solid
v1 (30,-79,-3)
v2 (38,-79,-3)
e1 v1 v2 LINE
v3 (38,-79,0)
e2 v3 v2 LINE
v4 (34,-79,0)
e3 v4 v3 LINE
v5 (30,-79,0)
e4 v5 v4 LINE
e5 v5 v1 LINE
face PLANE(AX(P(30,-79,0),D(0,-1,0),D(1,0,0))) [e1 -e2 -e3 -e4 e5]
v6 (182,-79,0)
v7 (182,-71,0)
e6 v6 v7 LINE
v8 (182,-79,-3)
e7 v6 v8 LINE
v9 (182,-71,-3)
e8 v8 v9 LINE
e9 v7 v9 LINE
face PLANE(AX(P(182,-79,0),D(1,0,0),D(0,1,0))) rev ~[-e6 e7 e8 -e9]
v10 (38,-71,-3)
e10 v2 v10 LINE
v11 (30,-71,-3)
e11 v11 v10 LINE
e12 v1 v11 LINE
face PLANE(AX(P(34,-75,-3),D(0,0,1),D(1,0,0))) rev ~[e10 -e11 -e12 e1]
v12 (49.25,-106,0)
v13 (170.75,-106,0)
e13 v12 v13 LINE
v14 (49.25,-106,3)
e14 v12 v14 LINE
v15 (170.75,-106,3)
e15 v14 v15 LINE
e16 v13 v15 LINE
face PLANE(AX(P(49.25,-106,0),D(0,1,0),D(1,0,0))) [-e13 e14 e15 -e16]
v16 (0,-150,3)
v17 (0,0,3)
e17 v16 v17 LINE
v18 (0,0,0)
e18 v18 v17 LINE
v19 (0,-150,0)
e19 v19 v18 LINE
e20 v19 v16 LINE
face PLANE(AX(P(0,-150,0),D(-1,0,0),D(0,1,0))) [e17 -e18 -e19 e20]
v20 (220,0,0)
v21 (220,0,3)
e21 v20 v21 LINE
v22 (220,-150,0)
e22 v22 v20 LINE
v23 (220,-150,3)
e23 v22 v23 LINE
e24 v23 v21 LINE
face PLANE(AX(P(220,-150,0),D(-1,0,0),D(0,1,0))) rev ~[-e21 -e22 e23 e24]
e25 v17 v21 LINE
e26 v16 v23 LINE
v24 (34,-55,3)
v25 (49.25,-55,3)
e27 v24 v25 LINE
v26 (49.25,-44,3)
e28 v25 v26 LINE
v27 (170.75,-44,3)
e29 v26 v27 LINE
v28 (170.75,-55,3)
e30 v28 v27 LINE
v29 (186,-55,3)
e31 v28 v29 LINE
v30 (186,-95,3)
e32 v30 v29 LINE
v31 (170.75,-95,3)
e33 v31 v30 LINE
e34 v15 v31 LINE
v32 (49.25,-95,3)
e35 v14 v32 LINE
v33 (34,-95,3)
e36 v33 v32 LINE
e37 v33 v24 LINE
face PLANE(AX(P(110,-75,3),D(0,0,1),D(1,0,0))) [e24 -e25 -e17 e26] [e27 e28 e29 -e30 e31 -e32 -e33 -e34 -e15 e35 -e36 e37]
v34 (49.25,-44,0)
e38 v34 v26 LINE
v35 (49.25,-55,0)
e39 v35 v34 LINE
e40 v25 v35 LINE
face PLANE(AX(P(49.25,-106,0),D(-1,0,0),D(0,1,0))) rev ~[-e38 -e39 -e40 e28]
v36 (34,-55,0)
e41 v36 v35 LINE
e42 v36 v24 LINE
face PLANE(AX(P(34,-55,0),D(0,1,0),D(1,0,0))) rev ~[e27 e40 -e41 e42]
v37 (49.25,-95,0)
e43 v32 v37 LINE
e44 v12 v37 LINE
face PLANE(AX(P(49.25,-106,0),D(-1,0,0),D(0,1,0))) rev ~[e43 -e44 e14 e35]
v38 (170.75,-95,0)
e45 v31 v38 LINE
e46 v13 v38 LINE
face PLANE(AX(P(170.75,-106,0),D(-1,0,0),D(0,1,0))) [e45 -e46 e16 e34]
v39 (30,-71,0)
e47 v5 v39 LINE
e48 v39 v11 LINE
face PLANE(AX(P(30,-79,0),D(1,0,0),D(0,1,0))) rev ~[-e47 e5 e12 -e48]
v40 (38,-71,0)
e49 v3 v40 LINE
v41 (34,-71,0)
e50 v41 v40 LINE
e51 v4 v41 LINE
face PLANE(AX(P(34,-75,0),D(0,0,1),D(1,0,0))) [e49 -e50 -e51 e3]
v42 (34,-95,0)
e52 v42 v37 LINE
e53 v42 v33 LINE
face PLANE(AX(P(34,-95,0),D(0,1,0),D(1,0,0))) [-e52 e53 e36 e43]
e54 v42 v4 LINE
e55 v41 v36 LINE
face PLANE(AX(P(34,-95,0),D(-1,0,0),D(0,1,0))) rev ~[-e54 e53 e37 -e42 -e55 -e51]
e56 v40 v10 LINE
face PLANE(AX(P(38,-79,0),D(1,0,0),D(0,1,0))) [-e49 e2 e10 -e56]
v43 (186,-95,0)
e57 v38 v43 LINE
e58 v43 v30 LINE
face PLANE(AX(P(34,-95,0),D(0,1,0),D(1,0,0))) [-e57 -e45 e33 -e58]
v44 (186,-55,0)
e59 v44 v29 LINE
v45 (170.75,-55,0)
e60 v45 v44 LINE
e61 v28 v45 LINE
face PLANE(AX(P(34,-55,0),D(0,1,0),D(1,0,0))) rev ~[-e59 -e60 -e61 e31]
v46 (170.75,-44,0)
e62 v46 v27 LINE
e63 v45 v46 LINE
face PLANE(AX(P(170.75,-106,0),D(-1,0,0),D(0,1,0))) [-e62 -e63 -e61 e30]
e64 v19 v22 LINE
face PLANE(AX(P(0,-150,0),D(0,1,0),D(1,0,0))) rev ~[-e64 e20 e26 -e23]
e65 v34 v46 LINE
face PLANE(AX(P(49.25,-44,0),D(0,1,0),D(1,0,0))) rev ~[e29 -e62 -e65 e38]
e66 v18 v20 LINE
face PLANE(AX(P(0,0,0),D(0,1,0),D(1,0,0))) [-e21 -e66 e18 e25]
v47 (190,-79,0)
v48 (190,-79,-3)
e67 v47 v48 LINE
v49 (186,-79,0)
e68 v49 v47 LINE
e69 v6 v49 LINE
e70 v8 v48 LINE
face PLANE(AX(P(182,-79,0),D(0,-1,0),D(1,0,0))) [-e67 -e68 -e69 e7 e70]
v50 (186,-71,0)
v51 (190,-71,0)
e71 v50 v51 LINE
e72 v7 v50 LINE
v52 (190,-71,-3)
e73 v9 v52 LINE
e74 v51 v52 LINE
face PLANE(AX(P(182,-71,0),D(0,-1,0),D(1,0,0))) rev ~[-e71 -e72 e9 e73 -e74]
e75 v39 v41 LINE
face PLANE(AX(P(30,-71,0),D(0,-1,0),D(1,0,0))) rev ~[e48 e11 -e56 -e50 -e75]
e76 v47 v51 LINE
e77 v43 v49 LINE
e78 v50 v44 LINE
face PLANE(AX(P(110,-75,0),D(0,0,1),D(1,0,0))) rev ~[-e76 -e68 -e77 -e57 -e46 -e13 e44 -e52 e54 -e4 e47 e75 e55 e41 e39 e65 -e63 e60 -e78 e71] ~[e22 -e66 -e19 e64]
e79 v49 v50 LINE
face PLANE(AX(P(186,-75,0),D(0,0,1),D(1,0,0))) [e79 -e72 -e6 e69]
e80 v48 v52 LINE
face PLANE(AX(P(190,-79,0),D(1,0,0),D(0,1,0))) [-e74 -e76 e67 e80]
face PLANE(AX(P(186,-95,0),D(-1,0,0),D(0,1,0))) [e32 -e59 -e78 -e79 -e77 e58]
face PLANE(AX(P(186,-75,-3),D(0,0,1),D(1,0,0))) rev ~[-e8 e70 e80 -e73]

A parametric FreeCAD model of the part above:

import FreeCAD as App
import Part
import Sketcher
from FreeCAD import Vector
Q = App.Units.Quantity

doc = App.newDocument("Part")
body = doc.addObject("PartDesign::Body", "Body")

sketch1 = body.newObject("Sketcher::SketchObject", "Sketch")
sketch1.AttachmentSupport = (doc.getObject("XY_Plane"), [""])
sketch1.MapMode = "FlatFace"
sketch1.addGeometry(Part.LineSegment(Vector(0, 0, 0), Vector(0, -150, 0)), False)
sketch1.addGeometry(Part.LineSegment(Vector(0, -150, 0), Vector(220, -150, 0)), False)
sketch1.addGeometry(Part.LineSegment(Vector(220, -150, 0), Vector(220, 0, 0)), False)
sketch1.addGeometry(Part.LineSegment(Vector(220, 0, 0), Vector(0, 0, 0)), False)
sketch1.addGeometry(Part.LineSegment(Vector(170.75, -106, 0), Vector(49.25, -106, 0)), False)
sketch1.addGeometry(Part.LineSegment(Vector(49.25, -106, 0), Vector(49.25, -44, 0)), False)
sketch1.addGeometry(Part.LineSegment(Vector(49.25, -44, 0), Vector(170.75, -44, 0)), False)
sketch1.addGeometry(Part.LineSegment(Vector(170.75, -44, 0), Vector(170.75, -106, 0)), False)
sketch1.addConstraint(Sketcher.Constraint("Coincident", 0, 2, 1, 1))
sketch1.addConstraint(Sketcher.Constraint("Coincident", 1, 2, 2, 1))
sketch1.addConstraint(Sketcher.Constraint("Coincident", 2, 2, 3, 1))
sketch1.addConstraint(Sketcher.Constraint("Coincident", 3, 2, 0, 1))
sketch1.addConstraint(Sketcher.Constraint("Coincident", 4, 2, 5, 1))
sketch1.addConstraint(Sketcher.Constraint("Coincident", 5, 2, 6, 1))
sketch1.addConstraint(Sketcher.Constraint("Coincident", 6, 2, 7, 1))
sketch1.addConstraint(Sketcher.Constraint("Coincident", 7, 2, 4, 1))
sketch1.addConstraint(Sketcher.Constraint("Vertical", 0))
sketch1.addConstraint(Sketcher.Constraint("Horizontal", 1))
sketch1.addConstraint(Sketcher.Constraint("Vertical", 2))
sketch1.addConstraint(Sketcher.Constraint("Horizontal", 3))
sketch1.addConstraint(Sketcher.Constraint("Horizontal", 4))
sketch1.addConstraint(Sketcher.Constraint("Vertical", 5))
sketch1.addConstraint(Sketcher.Constraint("Horizontal", 6))
sketch1.addConstraint(Sketcher.Constraint("Vertical", 7))
sketch1.addConstraint(Sketcher.Constraint("Coincident", 3, 2, -1, 1))
sketch1.addConstraint(Sketcher.Constraint("DistanceX", 1, 1, 1, 2, Q("220 mm")))
sketch1.addConstraint(Sketcher.Constraint("DistanceY", 0, 2, 0, 1, Q("150 mm")))
sketch1.addConstraint(Sketcher.Constraint("DistanceY", 5, 1, 5, 2, Q("62 mm")))
sketch1.addConstraint(Sketcher.Constraint("DistanceX", 4, 2, 4, 1, Q("121.5 mm")))
sketch1.addConstraint(Sketcher.Constraint("DistanceY", 4, 2, -1, 1, Q("106 mm")))
sketch1.addConstraint(Sketcher.Constraint("DistanceX", -1, 1, 4, 2, Q("49.25 mm")))
pad1 = body.newObject("PartDesign::Pad", "Pad")
pad1.Profile = sketch1
pad1.Length = 3

sketch2 = body.newObject("Sketcher::SketchObject", "Sketch001")
sketch2.AttachmentSupport = (doc.getObject("XY_Plane"), [""])
sketch2.MapMode = "FlatFace"
sketch2.addGeometry(Part.LineSegment(Vector(34, -55, 0), Vector(34, -95, 0)), False)
sketch2.addGeometry(Part.LineSegment(Vector(34, -95, 0), Vector(186, -95, 0)), False)
sketch2.addGeometry(Part.LineSegment(Vector(186, -95, 0), Vector(186, -55, 0)), False)
sketch2.addGeometry(Part.LineSegment(Vector(186, -55, 0), Vector(34, -55, 0)), False)
sketch2.addConstraint(Sketcher.Constraint("Coincident", 0, 2, 1, 1))
sketch2.addConstraint(Sketcher.Constraint("Coincident", 1, 2, 2, 1))
sketch2.addConstraint(Sketcher.Constraint("Coincident", 2, 2, 3, 1))
sketch2.addConstraint(Sketcher.Constraint("Coincident", 3, 2, 0, 1))
sketch2.addConstraint(Sketcher.Constraint("Vertical", 0))
sketch2.addConstraint(Sketcher.Constraint("Horizontal", 1))
sketch2.addConstraint(Sketcher.Constraint("Vertical", 2))
sketch2.addConstraint(Sketcher.Constraint("Horizontal", 3))
sketch2.addConstraint(Sketcher.Constraint("DistanceX", 1, 1, 1, 2, Q("152 mm")))
sketch2.addConstraint(Sketcher.Constraint("DistanceY", 0, 2, 0, 1, Q("40 mm")))
sketch2.addConstraint(Sketcher.Constraint("DistanceX", -1, 1, 0, 2, Q("34 mm")))
sketch2.addConstraint(Sketcher.Constraint("DistanceY", 0, 2, -1, 1, Q("95 mm")))
pocket1 = body.newObject("PartDesign::Pocket", "Pocket")
pocket1.Profile = sketch2
pocket1.Length = 3
pocket1.Reversed = True

sketch3 = body.newObject("Sketcher::SketchObject", "Sketch002")
sketch3.AttachmentSupport = (doc.getObject("XY_Plane"), [""])
sketch3.MapMode = "FlatFace"
sketch3.addGeometry(Part.LineSegment(Vector(30, -71, 0), Vector(30, -79, 0)), False)
sketch3.addGeometry(Part.LineSegment(Vector(30, -79, 0), Vector(38, -79, 0)), False)
sketch3.addGeometry(Part.LineSegment(Vector(38, -79, 0), Vector(38, -71, 0)), False)
sketch3.addGeometry(Part.LineSegment(Vector(38, -71, 0), Vector(30, -71, 0)), False)
sketch3.addConstraint(Sketcher.Constraint("Coincident", 0, 2, 1, 1))
sketch3.addConstraint(Sketcher.Constraint("Coincident", 1, 2, 2, 1))
sketch3.addConstraint(Sketcher.Constraint("Coincident", 2, 2, 3, 1))
sketch3.addConstraint(Sketcher.Constraint("Coincident", 3, 2, 0, 1))
sketch3.addConstraint(Sketcher.Constraint("Vertical", 0))
sketch3.addConstraint(Sketcher.Constraint("Horizontal", 1))
sketch3.addConstraint(Sketcher.Constraint("Vertical", 2))
sketch3.addConstraint(Sketcher.Constraint("Horizontal", 3))
sketch3.addConstraint(Sketcher.Constraint("Equal", 3, 0))
sketch3.addConstraint(Sketcher.Constraint("DistanceX", 1, 1, 1, 2, Q("8 mm")))
sketch3.addConstraint(Sketcher.Constraint("DistanceX", -1, 1, 0, 2, Q("30 mm")))
sketch3.addConstraint(Sketcher.Constraint("DistanceY", 0, 2, -1, 1, Q("79 mm")))
pad2 = body.newObject("PartDesign::Pad", "Pad001")
pad2.Profile = sketch3
pad2.Length = 3
pad2.Reversed = True

sketch4 = body.newObject("Sketcher::SketchObject", "Sketch003")
sketch4.AttachmentSupport = (doc.getObject("XY_Plane"), [""])
sketch4.MapMode = "FlatFace"
sketch4.addGeometry(Part.LineSegment(Vector(182, -71, 0), Vector(182, -79, 0)), False)
sketch4.addGeometry(Part.LineSegment(Vector(182, -79, 0), Vector(190, -79, 0)), False)
sketch4.addGeometry(Part.LineSegment(Vector(190, -79, 0), Vector(190, -71, 0)), False)
sketch4.addGeometry(Part.LineSegment(Vector(190, -71, 0), Vector(182, -71, 0)), False)
sketch4.addConstraint(Sketcher.Constraint("Coincident", 0, 2, 1, 1))
sketch4.addConstraint(Sketcher.Constraint("Coincident", 1, 2, 2, 1))
sketch4.addConstraint(Sketcher.Constraint("Coincident", 2, 2, 3, 1))
sketch4.addConstraint(Sketcher.Constraint("Coincident", 3, 2, 0, 1))
sketch4.addConstraint(Sketcher.Constraint("Vertical", 0))
sketch4.addConstraint(Sketcher.Constraint("Horizontal", 1))
sketch4.addConstraint(Sketcher.Constraint("Vertical", 2))
sketch4.addConstraint(Sketcher.Constraint("Horizontal", 3))
sketch4.addConstraint(Sketcher.Constraint("Equal", 3, 0))
sketch4.addConstraint(Sketcher.Constraint("DistanceX", 1, 1, 1, 2, Q("8 mm")))
sketch4.addConstraint(Sketcher.Constraint("DistanceX", -1, 1, 0, 2, Q("182 mm")))
sketch4.addConstraint(Sketcher.Constraint("DistanceY", 0, 2, -1, 1, Q("79 mm")))
pad3 = body.newObject("PartDesign::Pad", "Pad002")
pad3.Profile = sketch4
pad3.Length = 3
pad3.Reversed = True

doc.recompute()
